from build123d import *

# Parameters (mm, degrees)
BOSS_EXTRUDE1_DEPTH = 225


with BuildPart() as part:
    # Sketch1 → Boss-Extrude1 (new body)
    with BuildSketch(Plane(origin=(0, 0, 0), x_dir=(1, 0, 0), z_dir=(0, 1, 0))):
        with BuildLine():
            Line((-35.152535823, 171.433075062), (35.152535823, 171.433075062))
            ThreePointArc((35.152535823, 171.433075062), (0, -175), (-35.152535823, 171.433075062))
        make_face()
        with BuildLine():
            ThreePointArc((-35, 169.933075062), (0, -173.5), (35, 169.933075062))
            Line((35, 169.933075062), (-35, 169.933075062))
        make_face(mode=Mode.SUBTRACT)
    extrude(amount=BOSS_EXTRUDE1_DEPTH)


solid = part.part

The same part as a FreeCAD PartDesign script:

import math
import FreeCAD as App
import Part
import Sketcher

V = App.Vector
Q = App.Units.Quantity

doc = App.newDocument("Part")
params = doc.addObject("Spreadsheet::Sheet", "Params")
for row, (alias, value) in enumerate([
    ("sketch1_radius", "175 mm"),
    ("sketch1_radius2", "173.5 mm"),
    ("sketch1_width", "70 mm"),
    ("pad1_length", "225 mm"),
], start=1):
    params.set(f"A{row}", alias)
    params.set(f"B{row}", "=" + value)
    params.setAlias(f"B{row}", alias)

body = doc.addObject("PartDesign::Body", "Body")

sketch1 = doc.addObject("Sketcher::SketchObject", "Sketch")
body.addObject(sketch1)
sketch1.AttachmentSupport = (doc.XZ_Plane, [""])
sketch1.MapMode = "FlatFace"
sketch1.addGeometry(Part.LineSegment(V(35, -171, 0), V(-35, -171, 0)), False)
sketch1.addGeometry(Part.ArcOfCircle(Part.Circle(V(0, 0, 0), V(0, 0, 1), 175), math.radians(-78), math.radians(258)), False)
sketch1.addGeometry(Part.LineSegment(V(-35, -170, 0), V(35, -170, 0)), False)
sketch1.addGeometry(Part.ArcOfCircle(Part.Circle(V(0, 0, 0), V(0, 0, 1), 174), math.radians(-78), math.radians(258)), False)
sketch1.addConstraint(Sketcher.Constraint("Coincident", 0, 1, 1, 1))
sketch1.addConstraint(Sketcher.Constraint("Coincident", 1, 2, 0, 2))
sketch1.addConstraint(Sketcher.Constraint("Coincident", 2, 1, 3, 2))
sketch1.addConstraint(Sketcher.Constraint("Coincident", 3, 1, 2, 2))
sketch1.addConstraint(Sketcher.Constraint("Horizontal", 0))
sketch1.addConstraint(Sketcher.Constraint("Horizontal", 2))
sketch1.addConstraint(Sketcher.Constraint("Coincident", 1, 3, -1, 1))
sketch1.addConstraint(Sketcher.Constraint("Coincident", 3, 3, -1, 1))
sketch1.addConstraint(Sketcher.Constraint("Radius", 1, Q("175 mm")))
sketch1.addConstraint(Sketcher.Constraint("Radius", 3, Q("173.5 mm")))
sketch1.addConstraint(Sketcher.Constraint("DistanceX", 2, 1, 2, 2, Q("70 mm")))
sketch1.addConstraint(Sketcher.Constraint("DistanceY", 1, 2, 2, 1, Q("1.5 mm")))
sketch1.setExpression("Constraints[8]", "Params.sketch1_radius")
sketch1.setExpression("Constraints[9]", "Params.sketch1_radius2")
sketch1.setExpression("Constraints[10]", "Params.sketch1_width")
pad1 = doc.addObject("PartDesign::Pad", "Pad")
body.addObject(pad1)
pad1.Profile = sketch1
pad1.setExpression("Length", "Params.pad1_length")
pad1.Reversed = True

doc.recompute()
